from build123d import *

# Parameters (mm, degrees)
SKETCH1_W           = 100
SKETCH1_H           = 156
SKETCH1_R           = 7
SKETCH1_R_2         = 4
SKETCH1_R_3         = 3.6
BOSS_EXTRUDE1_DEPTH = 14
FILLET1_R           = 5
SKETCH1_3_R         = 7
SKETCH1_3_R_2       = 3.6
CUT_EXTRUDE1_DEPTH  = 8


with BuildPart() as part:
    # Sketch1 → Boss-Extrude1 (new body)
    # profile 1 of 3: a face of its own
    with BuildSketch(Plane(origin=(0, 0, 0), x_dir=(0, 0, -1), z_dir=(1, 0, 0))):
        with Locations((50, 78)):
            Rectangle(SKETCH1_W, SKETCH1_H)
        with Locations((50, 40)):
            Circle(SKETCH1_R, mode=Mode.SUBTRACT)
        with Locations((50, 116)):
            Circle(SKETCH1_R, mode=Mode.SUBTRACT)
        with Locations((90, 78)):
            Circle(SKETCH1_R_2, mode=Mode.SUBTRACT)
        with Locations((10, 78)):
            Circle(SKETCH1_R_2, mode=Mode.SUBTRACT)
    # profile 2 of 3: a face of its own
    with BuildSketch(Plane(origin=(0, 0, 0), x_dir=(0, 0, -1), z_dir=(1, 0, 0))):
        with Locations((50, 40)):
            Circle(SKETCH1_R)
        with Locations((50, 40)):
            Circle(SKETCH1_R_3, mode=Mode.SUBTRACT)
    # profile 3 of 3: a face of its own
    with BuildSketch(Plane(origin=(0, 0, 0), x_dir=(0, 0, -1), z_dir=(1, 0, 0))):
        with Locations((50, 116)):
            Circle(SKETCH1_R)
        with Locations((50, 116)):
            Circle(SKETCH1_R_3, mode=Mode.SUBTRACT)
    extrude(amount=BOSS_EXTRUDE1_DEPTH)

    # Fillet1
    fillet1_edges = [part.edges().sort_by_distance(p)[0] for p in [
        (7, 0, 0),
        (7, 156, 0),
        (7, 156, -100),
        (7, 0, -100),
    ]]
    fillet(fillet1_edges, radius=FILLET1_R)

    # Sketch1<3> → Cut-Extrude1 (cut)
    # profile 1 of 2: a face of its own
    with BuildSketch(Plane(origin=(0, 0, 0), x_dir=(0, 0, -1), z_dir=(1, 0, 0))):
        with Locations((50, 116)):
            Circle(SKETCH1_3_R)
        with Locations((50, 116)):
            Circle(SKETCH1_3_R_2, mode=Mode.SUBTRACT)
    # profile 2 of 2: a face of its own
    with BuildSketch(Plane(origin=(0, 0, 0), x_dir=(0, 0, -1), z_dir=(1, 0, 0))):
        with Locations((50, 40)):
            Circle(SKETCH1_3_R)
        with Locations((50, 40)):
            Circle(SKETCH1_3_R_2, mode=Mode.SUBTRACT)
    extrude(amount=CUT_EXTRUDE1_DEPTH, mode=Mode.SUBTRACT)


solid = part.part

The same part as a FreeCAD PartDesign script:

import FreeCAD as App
import Part
import Sketcher

V = App.Vector


def edges_at(feature, points):
    """Names of the edges that pass closest to the given points."""
    edges = feature.Shape.Edges
    near = lambda p: min(range(len(edges)), key=lambda i: edges[i].distToShape(Part.Vertex(*p))[0])
    return sorted({f"Edge{near(p) + 1}" for p in points})

doc = App.newDocument("Part")
body = doc.addObject("PartDesign::Body", "Body")

# Sketch on YZ plane
sketch1 = doc.addObject("Sketcher::SketchObject", "Sketch")
body.addObject(sketch1)
sketch1.AttachmentSupport = (doc.YZ_Plane, [""])
sketch1.MapMode = "FlatFace"
sketch1.addGeometry(Part.LineSegment(V(156, 0, 0), V(0, 0, 0)), False)
sketch1.addGeometry(Part.LineSegment(V(0, 0, 0), V(0, -100, 0)), False)
sketch1.addGeometry(Part.LineSegment(V(0, -100, 0), V(156, -100, 0)), False)
sketch1.addGeometry(Part.LineSegment(V(156, -100, 0), V(156, 0, 0)), False)
sketch1.addGeometry(Part.Circle(V(78, -10, 0), V(0, 0, 1), 4), False)
sketch1.addGeometry(Part.Circle(V(78, -90, 0), V(0, 0, 1), 4), False)
sketch1.addGeometry(Part.Circle(V(40, -50, 0), V(0, 0, 1), 3.6), False)
sketch1.addGeometry(Part.Circle(V(116, -50, 0), V(0, 0, 1), 3.6), False)
sketch1.addConstraint(Sketcher.Constraint("Coincident", 0, 2, 1, 1))
sketch1.addConstraint(Sketcher.Constraint("Coincident", 1, 2, 2, 1))
sketch1.addConstraint(Sketcher.Constraint("Coincident", 2, 2, 3, 1))
sketch1.addConstraint(Sketcher.Constraint("Coincident", 3, 2, 0, 1))
sketch1.addConstraint(Sketcher.Constraint("Horizontal", 0))
sketch1.addConstraint(Sketcher.Constraint("Vertical", 1))
sketch1.addConstraint(Sketcher.Constraint("Horizontal", 2))
sketch1.addConstraint(Sketcher.Constraint("Vertical", 3))
sketch1.addConstraint(Sketcher.Constraint("Coincident", 0, 2, -1, 1))
sketch1.addConstraint(Sketcher.Constraint("Equal", 4, 5))
sketch1.addConstraint(Sketcher.Constraint("Equal", 6, 7))
sketch1.addConstraint(Sketcher.Constraint("Horizontal", 6, 3, 7, 3))
sketch1.addConstraint(Sketcher.Constraint("Vertical", 4, 3, 5, 3))
sketch1.addConstraint(Sketcher.Constraint("Diameter", 4, 8.0))
sketch1.addConstraint(Sketcher.Constraint("Diameter", 6, 7.2))
sketch1.addConstraint(Sketcher.Constraint("DistanceX", 0, 2, 0, 1, 156.0))
sketch1.addConstraint(Sketcher.Constraint("DistanceY", 1, 2, 1, 1, 100.0))
sketch1.addConstraint(Sketcher.Constraint("DistanceX", -1, 1, 4, 3, 78.0))
sketch1.addConstraint(Sketcher.Constraint("DistanceY", 4, 3, -1, 1, 10.0))
sketch1.addConstraint(Sketcher.Constraint("DistanceY", 5, 3, -1, 1, 90.0))
sketch1.addConstraint(Sketcher.Constraint("DistanceX", -1, 1, 6, 3, 40.0))
sketch1.addConstraint(Sketcher.Constraint("DistanceY", 6, 3, -1, 1, 50.0))
sketch1.addConstraint(Sketcher.Constraint("DistanceX", -1, 1, 7, 3, 116.0))
pad1 = doc.addObject("PartDesign::Pad", "Pad")
body.addObject(pad1)
pad1.Profile = sketch1
pad1.Length = 14
doc.recompute()

fillet = doc.addObject("PartDesign::Fillet", "Fillet")
body.addObject(fillet)
fillet.Base = (pad1, edges_at(pad1, [
    (7, 0, 0),
    (7, 156, 0),
    (7, 156, -100),
    (7, 0, -100),
]))
fillet.Radius = 5

# Sketch on YZ plane
sketch2 = doc.addObject("Sketcher::SketchObject", "Sketch001")
body.addObject(sketch2)
sketch2.AttachmentSupport = (doc.YZ_Plane, [""])
sketch2.MapMode = "FlatFace"
sketch2.addGeometry(Part.Circle(V(116, -50, 0), V(0, 0, 1), 7), False)
sketch2.addGeometry(Part.Circle(V(116, -50, 0), V(0, 0, 1), 3.6), False)
sketch2.addGeometry(Part.Circle(V(40, -50, 0), V(0, 0, 1), 7), False)
sketch2.addGeometry(Part.Circle(V(40, -50, 0), V(0, 0, 1), 3.6), False)
sketch2.addConstraint(Sketcher.Constraint("Coincident", 1, 3, 0, 3))
sketch2.addConstraint(Sketcher.Constraint("Coincident", 3, 3, 2, 3))
sketch2.addConstraint(Sketcher.Constraint("Equal", 0, 2))
sketch2.addConstraint(Sketcher.Constraint("Equal", 1, 3))
sketch2.addConstraint(Sketcher.Constraint("Horizontal", 1, 3, 2, 3))
sketch2.addConstraint(Sketcher.Constraint("Diameter", 0, 14.0))
sketch2.addConstraint(Sketcher.Constraint("Diameter", 1, 7.2))
sketch2.addConstraint(Sketcher.Constraint("DistanceX", -1, 1, 0, 3, 116.0))
sketch2.addConstraint(Sketcher.Constraint("DistanceY", 0, 3, -1, 1, 50.0))
sketch2.addConstraint(Sketcher.Constraint("DistanceX", -1, 1, 2, 3, 40.0))
pocket1 = doc.addObject("PartDesign::Pocket", "Pocket")
body.addObject(pocket1)
pocket1.Profile = sketch2
pocket1.Length = 8
pocket1.Reversed = True

doc.recompute()
